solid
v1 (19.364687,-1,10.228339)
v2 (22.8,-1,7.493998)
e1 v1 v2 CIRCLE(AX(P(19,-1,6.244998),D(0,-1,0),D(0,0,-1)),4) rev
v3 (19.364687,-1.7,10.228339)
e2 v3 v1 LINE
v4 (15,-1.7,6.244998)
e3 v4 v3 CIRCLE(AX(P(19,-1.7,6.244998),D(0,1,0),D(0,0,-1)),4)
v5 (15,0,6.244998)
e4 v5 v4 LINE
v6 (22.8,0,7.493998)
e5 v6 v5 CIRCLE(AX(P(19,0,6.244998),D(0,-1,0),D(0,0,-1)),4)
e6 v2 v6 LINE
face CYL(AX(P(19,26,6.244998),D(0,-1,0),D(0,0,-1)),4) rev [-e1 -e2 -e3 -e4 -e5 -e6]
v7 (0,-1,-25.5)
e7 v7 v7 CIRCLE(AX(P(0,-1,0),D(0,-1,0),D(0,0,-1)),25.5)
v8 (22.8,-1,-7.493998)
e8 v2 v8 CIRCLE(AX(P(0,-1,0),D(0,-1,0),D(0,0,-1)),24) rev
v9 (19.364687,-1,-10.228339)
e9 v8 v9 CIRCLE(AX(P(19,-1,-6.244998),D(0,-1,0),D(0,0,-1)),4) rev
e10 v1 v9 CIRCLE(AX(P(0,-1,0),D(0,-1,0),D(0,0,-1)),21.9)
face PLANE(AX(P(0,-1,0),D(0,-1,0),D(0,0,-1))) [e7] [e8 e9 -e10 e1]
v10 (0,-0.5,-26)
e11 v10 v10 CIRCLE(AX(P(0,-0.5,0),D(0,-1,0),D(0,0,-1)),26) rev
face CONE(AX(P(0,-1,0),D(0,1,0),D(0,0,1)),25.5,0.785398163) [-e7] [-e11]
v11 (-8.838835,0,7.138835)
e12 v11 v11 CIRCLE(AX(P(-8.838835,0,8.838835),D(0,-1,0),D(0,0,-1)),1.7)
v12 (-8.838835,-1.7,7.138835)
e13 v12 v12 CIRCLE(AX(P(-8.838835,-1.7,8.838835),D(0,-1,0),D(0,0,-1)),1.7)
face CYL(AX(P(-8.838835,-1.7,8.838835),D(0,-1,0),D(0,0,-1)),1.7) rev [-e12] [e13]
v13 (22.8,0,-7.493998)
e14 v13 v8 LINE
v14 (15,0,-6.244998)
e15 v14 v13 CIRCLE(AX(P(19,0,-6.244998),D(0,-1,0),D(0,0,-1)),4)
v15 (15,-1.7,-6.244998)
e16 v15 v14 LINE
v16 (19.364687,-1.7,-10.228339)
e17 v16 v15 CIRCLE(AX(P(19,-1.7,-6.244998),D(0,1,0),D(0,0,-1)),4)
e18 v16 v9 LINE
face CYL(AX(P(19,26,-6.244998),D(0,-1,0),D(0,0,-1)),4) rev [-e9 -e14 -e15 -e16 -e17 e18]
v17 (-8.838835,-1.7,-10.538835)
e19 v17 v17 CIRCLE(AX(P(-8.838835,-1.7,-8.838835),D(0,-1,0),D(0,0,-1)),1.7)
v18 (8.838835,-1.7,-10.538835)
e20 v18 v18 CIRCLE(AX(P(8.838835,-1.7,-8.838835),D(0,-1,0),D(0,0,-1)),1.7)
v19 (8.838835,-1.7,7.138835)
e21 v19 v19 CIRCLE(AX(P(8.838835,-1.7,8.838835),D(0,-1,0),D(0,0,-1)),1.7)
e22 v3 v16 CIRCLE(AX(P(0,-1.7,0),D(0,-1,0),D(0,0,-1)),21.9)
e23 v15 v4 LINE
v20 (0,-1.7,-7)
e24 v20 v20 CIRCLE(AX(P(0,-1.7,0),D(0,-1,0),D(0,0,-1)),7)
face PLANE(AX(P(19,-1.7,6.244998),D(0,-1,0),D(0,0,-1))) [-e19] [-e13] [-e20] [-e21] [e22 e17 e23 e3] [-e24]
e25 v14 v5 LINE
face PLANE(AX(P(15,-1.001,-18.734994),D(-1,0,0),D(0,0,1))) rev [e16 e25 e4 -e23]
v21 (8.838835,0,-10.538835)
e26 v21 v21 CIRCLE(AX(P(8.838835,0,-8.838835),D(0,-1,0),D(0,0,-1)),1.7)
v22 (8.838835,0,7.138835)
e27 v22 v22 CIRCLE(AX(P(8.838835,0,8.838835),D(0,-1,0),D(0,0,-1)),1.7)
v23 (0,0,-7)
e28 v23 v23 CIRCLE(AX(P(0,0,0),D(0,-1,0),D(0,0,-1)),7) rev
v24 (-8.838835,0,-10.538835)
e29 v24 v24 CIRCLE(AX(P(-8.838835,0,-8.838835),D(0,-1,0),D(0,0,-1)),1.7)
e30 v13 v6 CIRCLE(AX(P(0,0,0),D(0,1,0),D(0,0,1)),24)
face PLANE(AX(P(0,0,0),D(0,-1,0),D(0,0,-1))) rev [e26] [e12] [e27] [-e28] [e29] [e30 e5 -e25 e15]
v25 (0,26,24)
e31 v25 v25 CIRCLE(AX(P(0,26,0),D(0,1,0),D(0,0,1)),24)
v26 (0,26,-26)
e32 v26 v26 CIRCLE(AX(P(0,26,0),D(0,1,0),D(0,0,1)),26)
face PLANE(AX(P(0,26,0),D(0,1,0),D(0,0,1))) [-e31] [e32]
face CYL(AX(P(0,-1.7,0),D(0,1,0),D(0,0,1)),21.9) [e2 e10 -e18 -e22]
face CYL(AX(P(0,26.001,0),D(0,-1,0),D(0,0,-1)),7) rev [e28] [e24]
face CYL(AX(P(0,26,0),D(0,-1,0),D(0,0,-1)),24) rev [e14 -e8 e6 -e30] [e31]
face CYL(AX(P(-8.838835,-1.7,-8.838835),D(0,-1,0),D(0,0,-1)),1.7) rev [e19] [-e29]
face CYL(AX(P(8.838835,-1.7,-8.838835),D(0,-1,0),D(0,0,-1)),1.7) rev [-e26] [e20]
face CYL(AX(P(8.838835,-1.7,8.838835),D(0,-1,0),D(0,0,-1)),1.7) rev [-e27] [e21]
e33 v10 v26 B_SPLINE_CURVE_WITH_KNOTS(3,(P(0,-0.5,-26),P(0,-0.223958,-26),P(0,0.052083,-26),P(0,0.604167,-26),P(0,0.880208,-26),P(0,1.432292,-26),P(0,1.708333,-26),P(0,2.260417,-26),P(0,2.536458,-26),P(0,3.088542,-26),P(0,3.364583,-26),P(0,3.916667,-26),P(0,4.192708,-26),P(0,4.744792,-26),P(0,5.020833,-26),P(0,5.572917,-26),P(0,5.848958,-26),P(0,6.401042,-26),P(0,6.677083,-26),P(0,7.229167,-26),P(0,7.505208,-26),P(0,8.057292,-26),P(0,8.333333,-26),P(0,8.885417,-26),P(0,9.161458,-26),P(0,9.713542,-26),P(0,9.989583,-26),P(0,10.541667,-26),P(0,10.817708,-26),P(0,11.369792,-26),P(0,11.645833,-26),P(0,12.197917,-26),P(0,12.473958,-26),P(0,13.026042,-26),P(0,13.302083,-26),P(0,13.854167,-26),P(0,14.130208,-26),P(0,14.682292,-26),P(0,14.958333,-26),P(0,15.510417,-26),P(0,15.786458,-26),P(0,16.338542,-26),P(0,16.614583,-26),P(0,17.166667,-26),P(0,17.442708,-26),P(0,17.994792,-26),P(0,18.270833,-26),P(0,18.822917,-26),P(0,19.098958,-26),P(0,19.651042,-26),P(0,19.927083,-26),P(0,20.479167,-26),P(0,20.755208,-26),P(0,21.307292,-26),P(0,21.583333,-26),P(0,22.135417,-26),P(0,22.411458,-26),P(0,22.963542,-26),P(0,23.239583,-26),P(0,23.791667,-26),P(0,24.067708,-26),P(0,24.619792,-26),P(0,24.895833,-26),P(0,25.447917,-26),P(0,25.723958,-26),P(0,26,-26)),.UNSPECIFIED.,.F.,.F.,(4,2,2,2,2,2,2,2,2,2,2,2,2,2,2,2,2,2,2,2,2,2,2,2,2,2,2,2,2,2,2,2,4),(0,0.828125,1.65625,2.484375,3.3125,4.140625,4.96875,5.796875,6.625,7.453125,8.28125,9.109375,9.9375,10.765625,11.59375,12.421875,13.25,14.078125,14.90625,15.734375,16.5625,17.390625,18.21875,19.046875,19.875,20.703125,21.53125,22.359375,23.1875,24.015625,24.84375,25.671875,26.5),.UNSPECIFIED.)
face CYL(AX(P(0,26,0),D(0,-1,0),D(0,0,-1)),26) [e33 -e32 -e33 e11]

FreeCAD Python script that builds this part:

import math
import FreeCAD as App
import Part
import Sketcher

V = App.Vector


def edges_at(feature, points):
    """Names of the edges that pass closest to the given points."""
    edges = feature.Shape.Edges
    near = lambda p: min(range(len(edges)), key=lambda i: edges[i].distToShape(Part.Vertex(*p))[0])
    return sorted({f"Edge{near(p) + 1}" for p in points})

doc = App.newDocument("Part")
body = doc.addObject("PartDesign::Body", "Body")

# Sketch on XZ plane
sketch1 = body.newObject("Sketcher::SketchObject", "Sketch")
sketch1.AttachmentSupport = (doc.getObject("XZ_Plane"), [""])
sketch1.MapMode = "FlatFace"
sketch1.addGeometry([
    Part.Circle(V(0, 0, 0), V(0, 0, 1), 26),
    Part.Circle(V(0, 0, 0), V(0, 0, 1), 24),
], False)
sketch1.addConstraint([
    Sketcher.Constraint("Coincident", 0, 3, -1, 1),
    Sketcher.Constraint("Coincident", 1, 3, -1, 1),
    Sketcher.Constraint("Diameter", 0, 52.0),
    Sketcher.Constraint("Diameter", 1, 48.0),
])
pad1 = body.newObject("PartDesign::Pad", "Pad")
pad1.Profile = sketch1
pad1.Length = 26
pad1.Reversed = True

# Sketch on XZ plane
sketch2 = body.newObject("Sketcher::SketchObject", "Sketch001")
sketch2.AttachmentSupport = (doc.getObject("XZ_Plane"), [""])
sketch2.MapMode = "FlatFace"
sketch2.AttachmentOffset = App.Placement(V(0, 0, 1), App.Rotation())
sketch2.addGeometry(Part.Circle(V(0, 0, 0), V(0, 0, 1), 26), False)
sketch2.addConstraint([
    Sketcher.Constraint("Coincident", 0, 3, -1, 1),
    Sketcher.Constraint("Diameter", 0, 52.0),
])
pad2 = body.newObject("PartDesign::Pad", "Pad001")
pad2.Profile = sketch2
pad2.Length = 1
pad2.Reversed = True

# Sketch on XZ plane
sketch3 = body.newObject("Sketcher::SketchObject", "Sketch002")
sketch3.AttachmentSupport = (doc.getObject("XZ_Plane"), [""])
sketch3.MapMode = "FlatFace"
sketch3.addGeometry([
    Part.LineSegment(V(15, -19, 0), V(15, 19, 0)),
    Part.ArcOfCircle(Part.Circle(V(0, 0, 0), V(0, 0, 1), 24), math.radians(-51), math.radians(51)),
], False)
sketch3.addConstraint([
    Sketcher.Constraint("Coincident", 0, 1, 1, 1),
    Sketcher.Constraint("Coincident", 1, 2, 0, 2),
    Sketcher.Constraint("Vertical", 0),
    Sketcher.Constraint("Coincident", 1, 3, -1, 1),
    Sketcher.Constraint("Radius", 1, 24.0),
    Sketcher.Constraint("DistanceX", -1, 1, 0, 1, 15.0),
])
pocket1 = body.newObject("PartDesign::Pocket", "Pocket")
pocket1.Profile = sketch3
pocket1.Type = "UpToFirst"
pocket1.Reversed = True
doc.recompute()

fillet = body.newObject("PartDesign::Fillet", "Fillet")
fillet.Base = (pocket1, edges_at(pocket1, [(15, -0.5, -18.735), (15, -0.5, 18.735)]))
fillet.Radius = 4

# Sketch on XZ plane
sketch4 = body.newObject("Sketcher::SketchObject", "Sketch003")
sketch4.AttachmentSupport = (doc.getObject("XZ_Plane"), [""])
sketch4.MapMode = "FlatFace"
sketch4.AttachmentOffset = App.Placement(V(0, 0, 1.7), App.Rotation())
sketch4.addGeometry([
    Part.LineSegment(V(15, -6.2, 0), V(15, 6.2, 0)),
    Part.ArcOfCircle(Part.Circle(V(19, 6.2, 0), V(0, 0, 1), 4), math.radians(85), math.radians(180)),
    Part.ArcOfCircle(Part.Circle(V(0, 0, 0), V(0, 0, 1), 21.9), math.radians(28), math.radians(332)),
    Part.ArcOfCircle(Part.Circle(V(19, -6.2, 0), V(0, 0, 1), 4), math.radians(-180), math.radians(-85)),
], False)
sketch4.addConstraint([
    Sketcher.Constraint("Tangent", 0, 2, 1, 2),
    Sketcher.Constraint("Coincident", 1, 1, 2, 1),
    Sketcher.Constraint("Coincident", 2, 2, 3, 2),
    Sketcher.Constraint("Tangent", 3, 1, 0, 1),
    Sketcher.Constraint("Vertical", 0),
    Sketcher.Constraint("Coincident", 2, 3, -1, 1),
    Sketcher.Constraint("Equal", 1, 3),
    Sketcher.Constraint("Vertical", 1, 1, 2, 2),
    Sketcher.Constraint("Radius", 1, 4.0),
    Sketcher.Constraint("Radius", 2, 21.9),
    Sketcher.Constraint("DistanceX", -1, 1, 1, 3, 19.0),
    Sketcher.Constraint("DistanceY", 0, 1, 0, 2, 12.489996),
])
pad3 = body.newObject("PartDesign::Pad", "Pad002")
pad3.Profile = sketch4
pad3.Length = 0.7
pad3.Reversed = True

# Sketch on XZ plane
sketch5 = body.newObject("Sketcher::SketchObject", "Sketch004")
sketch5.AttachmentSupport = (doc.getObject("XZ_Plane"), [""])
sketch5.MapMode = "FlatFace"
sketch5.AttachmentOffset = App.Placement(V(0, 0, 1.7), App.Rotation())
sketch5.addGeometry(Part.Circle(V(0, 0, 0), V(0, 0, 1), 7), False)
sketch5.addConstraint([
    Sketcher.Constraint("Coincident", 0, 3, -1, 1),
    Sketcher.Constraint("Diameter", 0, 14.0),
])
pocket2 = body.newObject("PartDesign::Pocket", "Pocket001")
pocket2.Profile = sketch5
pocket2.Type = "UpToFirst"

# Sketch on XZ plane
sketch6 = body.newObject("Sketcher::SketchObject", "Sketch005")
sketch6.AttachmentSupport = (doc.getObject("XZ_Plane"), [""])
sketch6.MapMode = "FlatFace"
sketch6.AttachmentOffset = App.Placement(V(0, 0, 1.7), App.Rotation())
sketch6.addGeometry([
    Part.Circle(V(-8.8, 8.8, 0), V(0, 0, 1), 1.7),
    Part.Circle(V(8.8, 8.8, 0), V(0, 0, 1), 1.7),
    Part.Circle(V(8.8, -8.8, 0), V(0, 0, 1), 1.7),
    Part.Circle(V(-8.8, -8.8, 0), V(0, 0, 1), 1.7),
], False)
sketch6.addConstraint([
    Sketcher.Constraint("Equal", 0, 1),
    Sketcher.Constraint("Equal", 1, 2),
    Sketcher.Constraint("Equal", 2, 3),
    Sketcher.Constraint("Symmetric", 0, 3, 2, 3, -1, 1),
    Sketcher.Constraint("Symmetric", 1, 3, 3, 3, -1, 1),
    Sketcher.Constraint("Symmetric", 0, 3, 1, 3, -2),
    Sketcher.Constraint("Diameter", 0, 3.4),
    Sketcher.Constraint("DistanceX", 0, 3, 1, 3, 17.67767),
    Sketcher.Constraint("DistanceY", 2, 3, 1, 3, 17.67767),
])
doc.recompute()
hole = body.newObject("PartDesign::Hole", "Hole")
hole.Profile = sketch6
hole.ThreadType = "None"
hole.Diameter = 3.4
hole.DepthType = "ThroughAll"
doc.recompute()

chamfer = body.newObject("PartDesign::Chamfer", "Chamfer")
chamfer.Base = (hole, edges_at(hole, [(0, -1, 26)]))
chamfer.Size = 0.5

doc.recompute()
